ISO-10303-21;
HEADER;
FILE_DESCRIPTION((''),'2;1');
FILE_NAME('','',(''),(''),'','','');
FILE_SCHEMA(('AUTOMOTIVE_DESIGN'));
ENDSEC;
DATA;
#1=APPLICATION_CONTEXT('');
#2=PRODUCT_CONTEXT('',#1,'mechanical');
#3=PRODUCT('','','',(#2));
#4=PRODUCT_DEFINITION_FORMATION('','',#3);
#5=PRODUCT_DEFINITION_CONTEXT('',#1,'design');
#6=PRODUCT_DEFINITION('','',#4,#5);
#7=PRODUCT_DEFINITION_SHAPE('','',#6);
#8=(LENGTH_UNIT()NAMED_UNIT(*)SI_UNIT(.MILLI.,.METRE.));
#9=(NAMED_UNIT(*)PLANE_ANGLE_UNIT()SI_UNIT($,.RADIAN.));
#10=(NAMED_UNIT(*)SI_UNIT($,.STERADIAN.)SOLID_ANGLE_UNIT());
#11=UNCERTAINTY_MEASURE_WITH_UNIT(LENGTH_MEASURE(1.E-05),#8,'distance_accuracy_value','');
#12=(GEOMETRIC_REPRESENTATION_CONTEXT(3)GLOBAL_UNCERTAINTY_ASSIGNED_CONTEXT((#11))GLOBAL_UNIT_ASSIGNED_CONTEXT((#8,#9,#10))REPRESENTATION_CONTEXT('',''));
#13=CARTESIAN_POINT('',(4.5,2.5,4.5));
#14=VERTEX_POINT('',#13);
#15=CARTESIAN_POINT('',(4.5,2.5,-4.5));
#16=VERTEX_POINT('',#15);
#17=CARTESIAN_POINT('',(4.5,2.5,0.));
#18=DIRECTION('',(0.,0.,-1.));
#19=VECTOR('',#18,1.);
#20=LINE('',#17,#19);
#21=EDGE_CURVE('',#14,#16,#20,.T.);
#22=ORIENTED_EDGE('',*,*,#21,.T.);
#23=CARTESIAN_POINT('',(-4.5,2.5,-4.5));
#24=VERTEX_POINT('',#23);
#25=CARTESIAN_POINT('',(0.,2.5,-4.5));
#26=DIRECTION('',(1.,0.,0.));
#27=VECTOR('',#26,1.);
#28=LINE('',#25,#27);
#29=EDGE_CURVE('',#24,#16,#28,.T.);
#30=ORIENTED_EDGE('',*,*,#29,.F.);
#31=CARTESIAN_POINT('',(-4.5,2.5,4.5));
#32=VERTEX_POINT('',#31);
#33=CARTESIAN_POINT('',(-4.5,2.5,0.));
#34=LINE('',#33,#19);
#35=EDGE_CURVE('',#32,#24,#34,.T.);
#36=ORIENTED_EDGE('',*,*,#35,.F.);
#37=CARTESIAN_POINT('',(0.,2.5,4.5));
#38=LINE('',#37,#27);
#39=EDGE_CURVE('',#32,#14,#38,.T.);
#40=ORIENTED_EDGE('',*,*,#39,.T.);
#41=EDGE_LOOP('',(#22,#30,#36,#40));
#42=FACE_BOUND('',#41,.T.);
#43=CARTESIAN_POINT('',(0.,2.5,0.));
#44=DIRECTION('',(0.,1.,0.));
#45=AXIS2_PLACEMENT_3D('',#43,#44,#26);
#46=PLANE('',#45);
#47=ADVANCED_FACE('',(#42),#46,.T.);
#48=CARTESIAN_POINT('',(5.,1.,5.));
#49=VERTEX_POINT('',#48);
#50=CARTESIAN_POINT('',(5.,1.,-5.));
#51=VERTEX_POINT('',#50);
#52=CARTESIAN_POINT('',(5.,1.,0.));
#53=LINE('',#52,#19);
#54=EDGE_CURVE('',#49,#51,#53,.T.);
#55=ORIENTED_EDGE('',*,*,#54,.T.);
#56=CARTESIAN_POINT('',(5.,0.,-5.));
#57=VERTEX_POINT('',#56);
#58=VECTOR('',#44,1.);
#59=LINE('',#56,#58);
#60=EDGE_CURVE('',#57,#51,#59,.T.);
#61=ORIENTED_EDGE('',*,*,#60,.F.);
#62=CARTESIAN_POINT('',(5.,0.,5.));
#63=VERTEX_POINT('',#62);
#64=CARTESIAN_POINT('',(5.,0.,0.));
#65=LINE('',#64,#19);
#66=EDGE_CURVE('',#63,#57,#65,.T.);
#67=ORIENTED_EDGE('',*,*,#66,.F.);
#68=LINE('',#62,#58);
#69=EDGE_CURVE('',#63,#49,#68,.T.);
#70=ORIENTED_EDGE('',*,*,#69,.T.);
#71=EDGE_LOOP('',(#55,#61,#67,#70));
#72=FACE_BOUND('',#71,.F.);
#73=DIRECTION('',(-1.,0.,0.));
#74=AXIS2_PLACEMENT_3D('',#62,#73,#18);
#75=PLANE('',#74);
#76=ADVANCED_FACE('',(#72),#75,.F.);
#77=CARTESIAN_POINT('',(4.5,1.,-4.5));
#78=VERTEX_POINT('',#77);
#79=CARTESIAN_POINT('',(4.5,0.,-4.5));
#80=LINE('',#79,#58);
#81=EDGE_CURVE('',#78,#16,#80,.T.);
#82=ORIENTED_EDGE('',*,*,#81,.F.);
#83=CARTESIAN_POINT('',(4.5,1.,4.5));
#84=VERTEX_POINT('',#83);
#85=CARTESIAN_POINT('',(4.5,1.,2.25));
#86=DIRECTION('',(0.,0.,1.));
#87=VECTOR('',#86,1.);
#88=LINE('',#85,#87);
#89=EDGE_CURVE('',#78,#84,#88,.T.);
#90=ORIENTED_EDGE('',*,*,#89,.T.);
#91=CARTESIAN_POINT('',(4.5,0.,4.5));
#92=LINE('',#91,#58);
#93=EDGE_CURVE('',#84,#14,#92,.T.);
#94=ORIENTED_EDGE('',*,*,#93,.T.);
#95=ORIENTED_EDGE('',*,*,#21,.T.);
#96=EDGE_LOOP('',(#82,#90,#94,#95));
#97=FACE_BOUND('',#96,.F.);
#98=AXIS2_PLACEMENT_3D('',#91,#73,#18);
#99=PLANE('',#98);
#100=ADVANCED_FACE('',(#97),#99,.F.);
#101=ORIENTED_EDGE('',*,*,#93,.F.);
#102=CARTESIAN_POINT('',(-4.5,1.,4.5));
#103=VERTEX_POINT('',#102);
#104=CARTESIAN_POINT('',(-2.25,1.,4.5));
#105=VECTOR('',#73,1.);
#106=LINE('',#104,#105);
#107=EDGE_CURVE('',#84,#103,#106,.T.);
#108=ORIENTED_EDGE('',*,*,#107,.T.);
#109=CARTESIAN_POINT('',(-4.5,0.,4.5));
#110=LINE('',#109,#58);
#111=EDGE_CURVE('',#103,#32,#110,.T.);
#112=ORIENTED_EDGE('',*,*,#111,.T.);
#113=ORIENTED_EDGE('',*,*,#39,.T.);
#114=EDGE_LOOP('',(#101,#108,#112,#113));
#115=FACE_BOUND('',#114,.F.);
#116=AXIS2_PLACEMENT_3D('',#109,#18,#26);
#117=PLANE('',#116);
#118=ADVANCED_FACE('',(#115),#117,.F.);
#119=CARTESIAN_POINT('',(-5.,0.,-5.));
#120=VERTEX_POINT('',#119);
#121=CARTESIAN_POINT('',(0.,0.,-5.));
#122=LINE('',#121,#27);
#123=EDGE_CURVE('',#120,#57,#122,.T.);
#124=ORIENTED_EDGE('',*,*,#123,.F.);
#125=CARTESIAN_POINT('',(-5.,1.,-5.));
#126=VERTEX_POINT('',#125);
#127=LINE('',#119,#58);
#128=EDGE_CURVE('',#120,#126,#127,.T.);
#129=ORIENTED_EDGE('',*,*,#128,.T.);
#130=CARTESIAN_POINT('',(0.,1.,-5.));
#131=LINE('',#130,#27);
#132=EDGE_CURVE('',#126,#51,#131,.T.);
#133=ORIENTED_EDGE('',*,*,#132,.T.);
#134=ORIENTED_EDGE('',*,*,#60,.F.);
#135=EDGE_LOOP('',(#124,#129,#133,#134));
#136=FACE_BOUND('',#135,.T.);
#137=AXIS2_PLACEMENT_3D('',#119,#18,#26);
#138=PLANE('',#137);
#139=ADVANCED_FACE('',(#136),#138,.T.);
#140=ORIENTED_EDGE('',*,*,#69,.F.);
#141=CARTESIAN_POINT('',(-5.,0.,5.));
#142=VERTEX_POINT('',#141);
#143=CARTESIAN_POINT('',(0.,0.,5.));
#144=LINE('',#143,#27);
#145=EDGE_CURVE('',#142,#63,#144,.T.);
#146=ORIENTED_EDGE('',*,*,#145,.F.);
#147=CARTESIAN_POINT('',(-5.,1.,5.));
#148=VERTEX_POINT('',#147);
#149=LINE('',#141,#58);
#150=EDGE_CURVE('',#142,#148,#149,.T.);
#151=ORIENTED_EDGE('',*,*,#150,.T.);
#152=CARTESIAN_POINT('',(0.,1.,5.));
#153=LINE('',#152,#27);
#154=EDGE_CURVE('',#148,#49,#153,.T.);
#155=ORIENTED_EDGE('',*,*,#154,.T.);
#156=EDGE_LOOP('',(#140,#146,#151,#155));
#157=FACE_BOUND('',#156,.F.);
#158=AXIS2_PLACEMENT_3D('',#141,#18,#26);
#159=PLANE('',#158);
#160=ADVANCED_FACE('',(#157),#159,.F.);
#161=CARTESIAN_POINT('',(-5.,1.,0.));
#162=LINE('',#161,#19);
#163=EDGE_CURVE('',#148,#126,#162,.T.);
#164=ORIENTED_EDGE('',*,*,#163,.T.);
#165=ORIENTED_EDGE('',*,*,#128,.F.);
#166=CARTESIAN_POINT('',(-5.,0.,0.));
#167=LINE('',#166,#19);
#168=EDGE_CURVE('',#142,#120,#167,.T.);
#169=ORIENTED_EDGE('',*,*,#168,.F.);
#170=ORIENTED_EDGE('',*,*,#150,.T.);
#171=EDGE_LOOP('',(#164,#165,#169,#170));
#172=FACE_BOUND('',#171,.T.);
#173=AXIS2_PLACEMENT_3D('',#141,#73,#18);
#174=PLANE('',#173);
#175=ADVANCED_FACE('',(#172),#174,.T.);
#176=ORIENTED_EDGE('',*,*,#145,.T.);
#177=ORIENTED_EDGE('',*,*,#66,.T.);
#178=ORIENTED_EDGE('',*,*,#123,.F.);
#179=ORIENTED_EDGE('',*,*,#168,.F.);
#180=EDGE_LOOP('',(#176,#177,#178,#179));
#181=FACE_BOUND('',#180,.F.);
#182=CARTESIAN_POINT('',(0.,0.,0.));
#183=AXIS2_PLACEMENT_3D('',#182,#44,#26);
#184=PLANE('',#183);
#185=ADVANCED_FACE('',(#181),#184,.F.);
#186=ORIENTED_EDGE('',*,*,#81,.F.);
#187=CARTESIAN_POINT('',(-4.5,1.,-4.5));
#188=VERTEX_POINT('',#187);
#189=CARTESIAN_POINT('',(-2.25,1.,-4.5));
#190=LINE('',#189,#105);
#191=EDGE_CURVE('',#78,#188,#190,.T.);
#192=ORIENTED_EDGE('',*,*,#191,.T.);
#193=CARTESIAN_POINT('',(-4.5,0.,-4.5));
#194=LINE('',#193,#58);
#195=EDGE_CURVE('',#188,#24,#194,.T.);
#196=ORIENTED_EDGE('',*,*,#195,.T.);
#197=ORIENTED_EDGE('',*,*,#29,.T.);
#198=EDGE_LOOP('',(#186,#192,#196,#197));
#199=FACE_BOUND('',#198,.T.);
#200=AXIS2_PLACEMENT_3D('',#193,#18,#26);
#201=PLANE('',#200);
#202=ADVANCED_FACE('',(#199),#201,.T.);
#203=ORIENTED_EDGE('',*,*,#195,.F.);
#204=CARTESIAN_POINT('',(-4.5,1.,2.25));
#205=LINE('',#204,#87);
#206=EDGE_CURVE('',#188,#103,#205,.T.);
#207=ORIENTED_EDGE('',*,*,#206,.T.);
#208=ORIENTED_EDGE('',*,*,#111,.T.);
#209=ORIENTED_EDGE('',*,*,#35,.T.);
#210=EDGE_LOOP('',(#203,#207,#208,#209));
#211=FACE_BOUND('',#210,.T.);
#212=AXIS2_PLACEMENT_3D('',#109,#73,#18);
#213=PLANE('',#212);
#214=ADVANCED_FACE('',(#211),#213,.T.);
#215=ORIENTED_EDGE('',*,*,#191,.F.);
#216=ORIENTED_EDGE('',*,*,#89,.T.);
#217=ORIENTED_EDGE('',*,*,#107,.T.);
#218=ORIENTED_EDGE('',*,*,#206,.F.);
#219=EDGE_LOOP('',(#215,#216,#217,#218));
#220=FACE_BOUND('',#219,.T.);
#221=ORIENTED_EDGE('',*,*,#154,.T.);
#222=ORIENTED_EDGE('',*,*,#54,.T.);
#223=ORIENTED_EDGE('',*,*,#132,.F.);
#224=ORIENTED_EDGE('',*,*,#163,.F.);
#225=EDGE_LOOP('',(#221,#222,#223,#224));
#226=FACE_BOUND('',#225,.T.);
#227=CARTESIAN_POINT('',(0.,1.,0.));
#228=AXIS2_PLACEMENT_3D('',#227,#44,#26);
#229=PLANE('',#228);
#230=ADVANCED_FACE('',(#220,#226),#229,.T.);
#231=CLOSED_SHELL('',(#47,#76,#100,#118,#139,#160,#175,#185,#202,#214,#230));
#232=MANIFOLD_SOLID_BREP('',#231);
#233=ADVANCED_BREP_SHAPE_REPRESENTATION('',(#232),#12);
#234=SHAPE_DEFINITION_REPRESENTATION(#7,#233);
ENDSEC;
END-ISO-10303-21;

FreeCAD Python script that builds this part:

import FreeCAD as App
import Part
import Sketcher

V = App.Vector
Q = App.Units.Quantity

doc = App.newDocument("Part")
body = doc.addObject("PartDesign::Body", "Body")

sketch1 = body.newObject("Sketcher::SketchObject", "Sketch")
sketch1.AttachmentSupport = (doc.getObject("XZ_Plane"), [""])
sketch1.MapMode = "FlatFace"
sketch1.addGeometry([
    Part.LineSegment(V(-5, -5, 0), V(-5, 5, 0)),
    Part.LineSegment(V(-5, 5, 0), V(5, 5, 0)),
    Part.LineSegment(V(5, 5, 0), V(5, -5, 0)),
    Part.LineSegment(V(5, -5, 0), V(-5, -5, 0)),
], False)
sketch1.addConstraint([
    Sketcher.Constraint("Coincident", 0, 2, 1, 1),
    Sketcher.Constraint("Coincident", 1, 2, 2, 1),
    Sketcher.Constraint("Coincident", 2, 2, 3, 1),
    Sketcher.Constraint("Coincident", 3, 2, 0, 1),
    Sketcher.Constraint("Vertical", 0),
    Sketcher.Constraint("Horizontal", 1),
    Sketcher.Constraint("Vertical", 2),
    Sketcher.Constraint("Horizontal", 3),
    Sketcher.Constraint("Symmetric", 0, 2, 2, 2, -1, 1),
    Sketcher.Constraint("Equal", 3, 0),
    Sketcher.Constraint("DistanceX", 1, 1, 1, 2, Q("10 mm")),
])
pad1 = body.newObject("PartDesign::Pad", "Pad")
pad1.Profile = sketch1
pad1.Length = 1
pad1.Reversed = True

sketch2 = body.newObject("Sketcher::SketchObject", "Sketch001")
sketch2.AttachmentSupport = (doc.getObject("XZ_Plane"), [""])
sketch2.MapMode = "FlatFace"
sketch2.addGeometry([
    Part.LineSegment(V(-4, -4, 0), V(-4, 4, 0)),
    Part.LineSegment(V(-4, 4, 0), V(4, 4, 0)),
    Part.LineSegment(V(4, 4, 0), V(4, -4, 0)),
    Part.LineSegment(V(4, -4, 0), V(-4, -4, 0)),
], False)
sketch2.addConstraint([
    Sketcher.Constraint("Coincident", 0, 2, 1, 1),
    Sketcher.Constraint("Coincident", 1, 2, 2, 1),
    Sketcher.Constraint("Coincident", 2, 2, 3, 1),
    Sketcher.Constraint("Coincident", 3, 2, 0, 1),
    Sketcher.Constraint("Vertical", 0),
    Sketcher.Constraint("Horizontal", 1),
    Sketcher.Constraint("Vertical", 2),
    Sketcher.Constraint("Horizontal", 3),
    Sketcher.Constraint("Symmetric", 0, 2, 2, 2, -1, 1),
    Sketcher.Constraint("Equal", 3, 0),
    Sketcher.Constraint("DistanceX", 1, 1, 1, 2, Q("9 mm")),
])
pad2 = body.newObject("PartDesign::Pad", "Pad001")
pad2.Profile = sketch2
pad2.Length = 2.5
pad2.Reversed = True

doc.recompute()
